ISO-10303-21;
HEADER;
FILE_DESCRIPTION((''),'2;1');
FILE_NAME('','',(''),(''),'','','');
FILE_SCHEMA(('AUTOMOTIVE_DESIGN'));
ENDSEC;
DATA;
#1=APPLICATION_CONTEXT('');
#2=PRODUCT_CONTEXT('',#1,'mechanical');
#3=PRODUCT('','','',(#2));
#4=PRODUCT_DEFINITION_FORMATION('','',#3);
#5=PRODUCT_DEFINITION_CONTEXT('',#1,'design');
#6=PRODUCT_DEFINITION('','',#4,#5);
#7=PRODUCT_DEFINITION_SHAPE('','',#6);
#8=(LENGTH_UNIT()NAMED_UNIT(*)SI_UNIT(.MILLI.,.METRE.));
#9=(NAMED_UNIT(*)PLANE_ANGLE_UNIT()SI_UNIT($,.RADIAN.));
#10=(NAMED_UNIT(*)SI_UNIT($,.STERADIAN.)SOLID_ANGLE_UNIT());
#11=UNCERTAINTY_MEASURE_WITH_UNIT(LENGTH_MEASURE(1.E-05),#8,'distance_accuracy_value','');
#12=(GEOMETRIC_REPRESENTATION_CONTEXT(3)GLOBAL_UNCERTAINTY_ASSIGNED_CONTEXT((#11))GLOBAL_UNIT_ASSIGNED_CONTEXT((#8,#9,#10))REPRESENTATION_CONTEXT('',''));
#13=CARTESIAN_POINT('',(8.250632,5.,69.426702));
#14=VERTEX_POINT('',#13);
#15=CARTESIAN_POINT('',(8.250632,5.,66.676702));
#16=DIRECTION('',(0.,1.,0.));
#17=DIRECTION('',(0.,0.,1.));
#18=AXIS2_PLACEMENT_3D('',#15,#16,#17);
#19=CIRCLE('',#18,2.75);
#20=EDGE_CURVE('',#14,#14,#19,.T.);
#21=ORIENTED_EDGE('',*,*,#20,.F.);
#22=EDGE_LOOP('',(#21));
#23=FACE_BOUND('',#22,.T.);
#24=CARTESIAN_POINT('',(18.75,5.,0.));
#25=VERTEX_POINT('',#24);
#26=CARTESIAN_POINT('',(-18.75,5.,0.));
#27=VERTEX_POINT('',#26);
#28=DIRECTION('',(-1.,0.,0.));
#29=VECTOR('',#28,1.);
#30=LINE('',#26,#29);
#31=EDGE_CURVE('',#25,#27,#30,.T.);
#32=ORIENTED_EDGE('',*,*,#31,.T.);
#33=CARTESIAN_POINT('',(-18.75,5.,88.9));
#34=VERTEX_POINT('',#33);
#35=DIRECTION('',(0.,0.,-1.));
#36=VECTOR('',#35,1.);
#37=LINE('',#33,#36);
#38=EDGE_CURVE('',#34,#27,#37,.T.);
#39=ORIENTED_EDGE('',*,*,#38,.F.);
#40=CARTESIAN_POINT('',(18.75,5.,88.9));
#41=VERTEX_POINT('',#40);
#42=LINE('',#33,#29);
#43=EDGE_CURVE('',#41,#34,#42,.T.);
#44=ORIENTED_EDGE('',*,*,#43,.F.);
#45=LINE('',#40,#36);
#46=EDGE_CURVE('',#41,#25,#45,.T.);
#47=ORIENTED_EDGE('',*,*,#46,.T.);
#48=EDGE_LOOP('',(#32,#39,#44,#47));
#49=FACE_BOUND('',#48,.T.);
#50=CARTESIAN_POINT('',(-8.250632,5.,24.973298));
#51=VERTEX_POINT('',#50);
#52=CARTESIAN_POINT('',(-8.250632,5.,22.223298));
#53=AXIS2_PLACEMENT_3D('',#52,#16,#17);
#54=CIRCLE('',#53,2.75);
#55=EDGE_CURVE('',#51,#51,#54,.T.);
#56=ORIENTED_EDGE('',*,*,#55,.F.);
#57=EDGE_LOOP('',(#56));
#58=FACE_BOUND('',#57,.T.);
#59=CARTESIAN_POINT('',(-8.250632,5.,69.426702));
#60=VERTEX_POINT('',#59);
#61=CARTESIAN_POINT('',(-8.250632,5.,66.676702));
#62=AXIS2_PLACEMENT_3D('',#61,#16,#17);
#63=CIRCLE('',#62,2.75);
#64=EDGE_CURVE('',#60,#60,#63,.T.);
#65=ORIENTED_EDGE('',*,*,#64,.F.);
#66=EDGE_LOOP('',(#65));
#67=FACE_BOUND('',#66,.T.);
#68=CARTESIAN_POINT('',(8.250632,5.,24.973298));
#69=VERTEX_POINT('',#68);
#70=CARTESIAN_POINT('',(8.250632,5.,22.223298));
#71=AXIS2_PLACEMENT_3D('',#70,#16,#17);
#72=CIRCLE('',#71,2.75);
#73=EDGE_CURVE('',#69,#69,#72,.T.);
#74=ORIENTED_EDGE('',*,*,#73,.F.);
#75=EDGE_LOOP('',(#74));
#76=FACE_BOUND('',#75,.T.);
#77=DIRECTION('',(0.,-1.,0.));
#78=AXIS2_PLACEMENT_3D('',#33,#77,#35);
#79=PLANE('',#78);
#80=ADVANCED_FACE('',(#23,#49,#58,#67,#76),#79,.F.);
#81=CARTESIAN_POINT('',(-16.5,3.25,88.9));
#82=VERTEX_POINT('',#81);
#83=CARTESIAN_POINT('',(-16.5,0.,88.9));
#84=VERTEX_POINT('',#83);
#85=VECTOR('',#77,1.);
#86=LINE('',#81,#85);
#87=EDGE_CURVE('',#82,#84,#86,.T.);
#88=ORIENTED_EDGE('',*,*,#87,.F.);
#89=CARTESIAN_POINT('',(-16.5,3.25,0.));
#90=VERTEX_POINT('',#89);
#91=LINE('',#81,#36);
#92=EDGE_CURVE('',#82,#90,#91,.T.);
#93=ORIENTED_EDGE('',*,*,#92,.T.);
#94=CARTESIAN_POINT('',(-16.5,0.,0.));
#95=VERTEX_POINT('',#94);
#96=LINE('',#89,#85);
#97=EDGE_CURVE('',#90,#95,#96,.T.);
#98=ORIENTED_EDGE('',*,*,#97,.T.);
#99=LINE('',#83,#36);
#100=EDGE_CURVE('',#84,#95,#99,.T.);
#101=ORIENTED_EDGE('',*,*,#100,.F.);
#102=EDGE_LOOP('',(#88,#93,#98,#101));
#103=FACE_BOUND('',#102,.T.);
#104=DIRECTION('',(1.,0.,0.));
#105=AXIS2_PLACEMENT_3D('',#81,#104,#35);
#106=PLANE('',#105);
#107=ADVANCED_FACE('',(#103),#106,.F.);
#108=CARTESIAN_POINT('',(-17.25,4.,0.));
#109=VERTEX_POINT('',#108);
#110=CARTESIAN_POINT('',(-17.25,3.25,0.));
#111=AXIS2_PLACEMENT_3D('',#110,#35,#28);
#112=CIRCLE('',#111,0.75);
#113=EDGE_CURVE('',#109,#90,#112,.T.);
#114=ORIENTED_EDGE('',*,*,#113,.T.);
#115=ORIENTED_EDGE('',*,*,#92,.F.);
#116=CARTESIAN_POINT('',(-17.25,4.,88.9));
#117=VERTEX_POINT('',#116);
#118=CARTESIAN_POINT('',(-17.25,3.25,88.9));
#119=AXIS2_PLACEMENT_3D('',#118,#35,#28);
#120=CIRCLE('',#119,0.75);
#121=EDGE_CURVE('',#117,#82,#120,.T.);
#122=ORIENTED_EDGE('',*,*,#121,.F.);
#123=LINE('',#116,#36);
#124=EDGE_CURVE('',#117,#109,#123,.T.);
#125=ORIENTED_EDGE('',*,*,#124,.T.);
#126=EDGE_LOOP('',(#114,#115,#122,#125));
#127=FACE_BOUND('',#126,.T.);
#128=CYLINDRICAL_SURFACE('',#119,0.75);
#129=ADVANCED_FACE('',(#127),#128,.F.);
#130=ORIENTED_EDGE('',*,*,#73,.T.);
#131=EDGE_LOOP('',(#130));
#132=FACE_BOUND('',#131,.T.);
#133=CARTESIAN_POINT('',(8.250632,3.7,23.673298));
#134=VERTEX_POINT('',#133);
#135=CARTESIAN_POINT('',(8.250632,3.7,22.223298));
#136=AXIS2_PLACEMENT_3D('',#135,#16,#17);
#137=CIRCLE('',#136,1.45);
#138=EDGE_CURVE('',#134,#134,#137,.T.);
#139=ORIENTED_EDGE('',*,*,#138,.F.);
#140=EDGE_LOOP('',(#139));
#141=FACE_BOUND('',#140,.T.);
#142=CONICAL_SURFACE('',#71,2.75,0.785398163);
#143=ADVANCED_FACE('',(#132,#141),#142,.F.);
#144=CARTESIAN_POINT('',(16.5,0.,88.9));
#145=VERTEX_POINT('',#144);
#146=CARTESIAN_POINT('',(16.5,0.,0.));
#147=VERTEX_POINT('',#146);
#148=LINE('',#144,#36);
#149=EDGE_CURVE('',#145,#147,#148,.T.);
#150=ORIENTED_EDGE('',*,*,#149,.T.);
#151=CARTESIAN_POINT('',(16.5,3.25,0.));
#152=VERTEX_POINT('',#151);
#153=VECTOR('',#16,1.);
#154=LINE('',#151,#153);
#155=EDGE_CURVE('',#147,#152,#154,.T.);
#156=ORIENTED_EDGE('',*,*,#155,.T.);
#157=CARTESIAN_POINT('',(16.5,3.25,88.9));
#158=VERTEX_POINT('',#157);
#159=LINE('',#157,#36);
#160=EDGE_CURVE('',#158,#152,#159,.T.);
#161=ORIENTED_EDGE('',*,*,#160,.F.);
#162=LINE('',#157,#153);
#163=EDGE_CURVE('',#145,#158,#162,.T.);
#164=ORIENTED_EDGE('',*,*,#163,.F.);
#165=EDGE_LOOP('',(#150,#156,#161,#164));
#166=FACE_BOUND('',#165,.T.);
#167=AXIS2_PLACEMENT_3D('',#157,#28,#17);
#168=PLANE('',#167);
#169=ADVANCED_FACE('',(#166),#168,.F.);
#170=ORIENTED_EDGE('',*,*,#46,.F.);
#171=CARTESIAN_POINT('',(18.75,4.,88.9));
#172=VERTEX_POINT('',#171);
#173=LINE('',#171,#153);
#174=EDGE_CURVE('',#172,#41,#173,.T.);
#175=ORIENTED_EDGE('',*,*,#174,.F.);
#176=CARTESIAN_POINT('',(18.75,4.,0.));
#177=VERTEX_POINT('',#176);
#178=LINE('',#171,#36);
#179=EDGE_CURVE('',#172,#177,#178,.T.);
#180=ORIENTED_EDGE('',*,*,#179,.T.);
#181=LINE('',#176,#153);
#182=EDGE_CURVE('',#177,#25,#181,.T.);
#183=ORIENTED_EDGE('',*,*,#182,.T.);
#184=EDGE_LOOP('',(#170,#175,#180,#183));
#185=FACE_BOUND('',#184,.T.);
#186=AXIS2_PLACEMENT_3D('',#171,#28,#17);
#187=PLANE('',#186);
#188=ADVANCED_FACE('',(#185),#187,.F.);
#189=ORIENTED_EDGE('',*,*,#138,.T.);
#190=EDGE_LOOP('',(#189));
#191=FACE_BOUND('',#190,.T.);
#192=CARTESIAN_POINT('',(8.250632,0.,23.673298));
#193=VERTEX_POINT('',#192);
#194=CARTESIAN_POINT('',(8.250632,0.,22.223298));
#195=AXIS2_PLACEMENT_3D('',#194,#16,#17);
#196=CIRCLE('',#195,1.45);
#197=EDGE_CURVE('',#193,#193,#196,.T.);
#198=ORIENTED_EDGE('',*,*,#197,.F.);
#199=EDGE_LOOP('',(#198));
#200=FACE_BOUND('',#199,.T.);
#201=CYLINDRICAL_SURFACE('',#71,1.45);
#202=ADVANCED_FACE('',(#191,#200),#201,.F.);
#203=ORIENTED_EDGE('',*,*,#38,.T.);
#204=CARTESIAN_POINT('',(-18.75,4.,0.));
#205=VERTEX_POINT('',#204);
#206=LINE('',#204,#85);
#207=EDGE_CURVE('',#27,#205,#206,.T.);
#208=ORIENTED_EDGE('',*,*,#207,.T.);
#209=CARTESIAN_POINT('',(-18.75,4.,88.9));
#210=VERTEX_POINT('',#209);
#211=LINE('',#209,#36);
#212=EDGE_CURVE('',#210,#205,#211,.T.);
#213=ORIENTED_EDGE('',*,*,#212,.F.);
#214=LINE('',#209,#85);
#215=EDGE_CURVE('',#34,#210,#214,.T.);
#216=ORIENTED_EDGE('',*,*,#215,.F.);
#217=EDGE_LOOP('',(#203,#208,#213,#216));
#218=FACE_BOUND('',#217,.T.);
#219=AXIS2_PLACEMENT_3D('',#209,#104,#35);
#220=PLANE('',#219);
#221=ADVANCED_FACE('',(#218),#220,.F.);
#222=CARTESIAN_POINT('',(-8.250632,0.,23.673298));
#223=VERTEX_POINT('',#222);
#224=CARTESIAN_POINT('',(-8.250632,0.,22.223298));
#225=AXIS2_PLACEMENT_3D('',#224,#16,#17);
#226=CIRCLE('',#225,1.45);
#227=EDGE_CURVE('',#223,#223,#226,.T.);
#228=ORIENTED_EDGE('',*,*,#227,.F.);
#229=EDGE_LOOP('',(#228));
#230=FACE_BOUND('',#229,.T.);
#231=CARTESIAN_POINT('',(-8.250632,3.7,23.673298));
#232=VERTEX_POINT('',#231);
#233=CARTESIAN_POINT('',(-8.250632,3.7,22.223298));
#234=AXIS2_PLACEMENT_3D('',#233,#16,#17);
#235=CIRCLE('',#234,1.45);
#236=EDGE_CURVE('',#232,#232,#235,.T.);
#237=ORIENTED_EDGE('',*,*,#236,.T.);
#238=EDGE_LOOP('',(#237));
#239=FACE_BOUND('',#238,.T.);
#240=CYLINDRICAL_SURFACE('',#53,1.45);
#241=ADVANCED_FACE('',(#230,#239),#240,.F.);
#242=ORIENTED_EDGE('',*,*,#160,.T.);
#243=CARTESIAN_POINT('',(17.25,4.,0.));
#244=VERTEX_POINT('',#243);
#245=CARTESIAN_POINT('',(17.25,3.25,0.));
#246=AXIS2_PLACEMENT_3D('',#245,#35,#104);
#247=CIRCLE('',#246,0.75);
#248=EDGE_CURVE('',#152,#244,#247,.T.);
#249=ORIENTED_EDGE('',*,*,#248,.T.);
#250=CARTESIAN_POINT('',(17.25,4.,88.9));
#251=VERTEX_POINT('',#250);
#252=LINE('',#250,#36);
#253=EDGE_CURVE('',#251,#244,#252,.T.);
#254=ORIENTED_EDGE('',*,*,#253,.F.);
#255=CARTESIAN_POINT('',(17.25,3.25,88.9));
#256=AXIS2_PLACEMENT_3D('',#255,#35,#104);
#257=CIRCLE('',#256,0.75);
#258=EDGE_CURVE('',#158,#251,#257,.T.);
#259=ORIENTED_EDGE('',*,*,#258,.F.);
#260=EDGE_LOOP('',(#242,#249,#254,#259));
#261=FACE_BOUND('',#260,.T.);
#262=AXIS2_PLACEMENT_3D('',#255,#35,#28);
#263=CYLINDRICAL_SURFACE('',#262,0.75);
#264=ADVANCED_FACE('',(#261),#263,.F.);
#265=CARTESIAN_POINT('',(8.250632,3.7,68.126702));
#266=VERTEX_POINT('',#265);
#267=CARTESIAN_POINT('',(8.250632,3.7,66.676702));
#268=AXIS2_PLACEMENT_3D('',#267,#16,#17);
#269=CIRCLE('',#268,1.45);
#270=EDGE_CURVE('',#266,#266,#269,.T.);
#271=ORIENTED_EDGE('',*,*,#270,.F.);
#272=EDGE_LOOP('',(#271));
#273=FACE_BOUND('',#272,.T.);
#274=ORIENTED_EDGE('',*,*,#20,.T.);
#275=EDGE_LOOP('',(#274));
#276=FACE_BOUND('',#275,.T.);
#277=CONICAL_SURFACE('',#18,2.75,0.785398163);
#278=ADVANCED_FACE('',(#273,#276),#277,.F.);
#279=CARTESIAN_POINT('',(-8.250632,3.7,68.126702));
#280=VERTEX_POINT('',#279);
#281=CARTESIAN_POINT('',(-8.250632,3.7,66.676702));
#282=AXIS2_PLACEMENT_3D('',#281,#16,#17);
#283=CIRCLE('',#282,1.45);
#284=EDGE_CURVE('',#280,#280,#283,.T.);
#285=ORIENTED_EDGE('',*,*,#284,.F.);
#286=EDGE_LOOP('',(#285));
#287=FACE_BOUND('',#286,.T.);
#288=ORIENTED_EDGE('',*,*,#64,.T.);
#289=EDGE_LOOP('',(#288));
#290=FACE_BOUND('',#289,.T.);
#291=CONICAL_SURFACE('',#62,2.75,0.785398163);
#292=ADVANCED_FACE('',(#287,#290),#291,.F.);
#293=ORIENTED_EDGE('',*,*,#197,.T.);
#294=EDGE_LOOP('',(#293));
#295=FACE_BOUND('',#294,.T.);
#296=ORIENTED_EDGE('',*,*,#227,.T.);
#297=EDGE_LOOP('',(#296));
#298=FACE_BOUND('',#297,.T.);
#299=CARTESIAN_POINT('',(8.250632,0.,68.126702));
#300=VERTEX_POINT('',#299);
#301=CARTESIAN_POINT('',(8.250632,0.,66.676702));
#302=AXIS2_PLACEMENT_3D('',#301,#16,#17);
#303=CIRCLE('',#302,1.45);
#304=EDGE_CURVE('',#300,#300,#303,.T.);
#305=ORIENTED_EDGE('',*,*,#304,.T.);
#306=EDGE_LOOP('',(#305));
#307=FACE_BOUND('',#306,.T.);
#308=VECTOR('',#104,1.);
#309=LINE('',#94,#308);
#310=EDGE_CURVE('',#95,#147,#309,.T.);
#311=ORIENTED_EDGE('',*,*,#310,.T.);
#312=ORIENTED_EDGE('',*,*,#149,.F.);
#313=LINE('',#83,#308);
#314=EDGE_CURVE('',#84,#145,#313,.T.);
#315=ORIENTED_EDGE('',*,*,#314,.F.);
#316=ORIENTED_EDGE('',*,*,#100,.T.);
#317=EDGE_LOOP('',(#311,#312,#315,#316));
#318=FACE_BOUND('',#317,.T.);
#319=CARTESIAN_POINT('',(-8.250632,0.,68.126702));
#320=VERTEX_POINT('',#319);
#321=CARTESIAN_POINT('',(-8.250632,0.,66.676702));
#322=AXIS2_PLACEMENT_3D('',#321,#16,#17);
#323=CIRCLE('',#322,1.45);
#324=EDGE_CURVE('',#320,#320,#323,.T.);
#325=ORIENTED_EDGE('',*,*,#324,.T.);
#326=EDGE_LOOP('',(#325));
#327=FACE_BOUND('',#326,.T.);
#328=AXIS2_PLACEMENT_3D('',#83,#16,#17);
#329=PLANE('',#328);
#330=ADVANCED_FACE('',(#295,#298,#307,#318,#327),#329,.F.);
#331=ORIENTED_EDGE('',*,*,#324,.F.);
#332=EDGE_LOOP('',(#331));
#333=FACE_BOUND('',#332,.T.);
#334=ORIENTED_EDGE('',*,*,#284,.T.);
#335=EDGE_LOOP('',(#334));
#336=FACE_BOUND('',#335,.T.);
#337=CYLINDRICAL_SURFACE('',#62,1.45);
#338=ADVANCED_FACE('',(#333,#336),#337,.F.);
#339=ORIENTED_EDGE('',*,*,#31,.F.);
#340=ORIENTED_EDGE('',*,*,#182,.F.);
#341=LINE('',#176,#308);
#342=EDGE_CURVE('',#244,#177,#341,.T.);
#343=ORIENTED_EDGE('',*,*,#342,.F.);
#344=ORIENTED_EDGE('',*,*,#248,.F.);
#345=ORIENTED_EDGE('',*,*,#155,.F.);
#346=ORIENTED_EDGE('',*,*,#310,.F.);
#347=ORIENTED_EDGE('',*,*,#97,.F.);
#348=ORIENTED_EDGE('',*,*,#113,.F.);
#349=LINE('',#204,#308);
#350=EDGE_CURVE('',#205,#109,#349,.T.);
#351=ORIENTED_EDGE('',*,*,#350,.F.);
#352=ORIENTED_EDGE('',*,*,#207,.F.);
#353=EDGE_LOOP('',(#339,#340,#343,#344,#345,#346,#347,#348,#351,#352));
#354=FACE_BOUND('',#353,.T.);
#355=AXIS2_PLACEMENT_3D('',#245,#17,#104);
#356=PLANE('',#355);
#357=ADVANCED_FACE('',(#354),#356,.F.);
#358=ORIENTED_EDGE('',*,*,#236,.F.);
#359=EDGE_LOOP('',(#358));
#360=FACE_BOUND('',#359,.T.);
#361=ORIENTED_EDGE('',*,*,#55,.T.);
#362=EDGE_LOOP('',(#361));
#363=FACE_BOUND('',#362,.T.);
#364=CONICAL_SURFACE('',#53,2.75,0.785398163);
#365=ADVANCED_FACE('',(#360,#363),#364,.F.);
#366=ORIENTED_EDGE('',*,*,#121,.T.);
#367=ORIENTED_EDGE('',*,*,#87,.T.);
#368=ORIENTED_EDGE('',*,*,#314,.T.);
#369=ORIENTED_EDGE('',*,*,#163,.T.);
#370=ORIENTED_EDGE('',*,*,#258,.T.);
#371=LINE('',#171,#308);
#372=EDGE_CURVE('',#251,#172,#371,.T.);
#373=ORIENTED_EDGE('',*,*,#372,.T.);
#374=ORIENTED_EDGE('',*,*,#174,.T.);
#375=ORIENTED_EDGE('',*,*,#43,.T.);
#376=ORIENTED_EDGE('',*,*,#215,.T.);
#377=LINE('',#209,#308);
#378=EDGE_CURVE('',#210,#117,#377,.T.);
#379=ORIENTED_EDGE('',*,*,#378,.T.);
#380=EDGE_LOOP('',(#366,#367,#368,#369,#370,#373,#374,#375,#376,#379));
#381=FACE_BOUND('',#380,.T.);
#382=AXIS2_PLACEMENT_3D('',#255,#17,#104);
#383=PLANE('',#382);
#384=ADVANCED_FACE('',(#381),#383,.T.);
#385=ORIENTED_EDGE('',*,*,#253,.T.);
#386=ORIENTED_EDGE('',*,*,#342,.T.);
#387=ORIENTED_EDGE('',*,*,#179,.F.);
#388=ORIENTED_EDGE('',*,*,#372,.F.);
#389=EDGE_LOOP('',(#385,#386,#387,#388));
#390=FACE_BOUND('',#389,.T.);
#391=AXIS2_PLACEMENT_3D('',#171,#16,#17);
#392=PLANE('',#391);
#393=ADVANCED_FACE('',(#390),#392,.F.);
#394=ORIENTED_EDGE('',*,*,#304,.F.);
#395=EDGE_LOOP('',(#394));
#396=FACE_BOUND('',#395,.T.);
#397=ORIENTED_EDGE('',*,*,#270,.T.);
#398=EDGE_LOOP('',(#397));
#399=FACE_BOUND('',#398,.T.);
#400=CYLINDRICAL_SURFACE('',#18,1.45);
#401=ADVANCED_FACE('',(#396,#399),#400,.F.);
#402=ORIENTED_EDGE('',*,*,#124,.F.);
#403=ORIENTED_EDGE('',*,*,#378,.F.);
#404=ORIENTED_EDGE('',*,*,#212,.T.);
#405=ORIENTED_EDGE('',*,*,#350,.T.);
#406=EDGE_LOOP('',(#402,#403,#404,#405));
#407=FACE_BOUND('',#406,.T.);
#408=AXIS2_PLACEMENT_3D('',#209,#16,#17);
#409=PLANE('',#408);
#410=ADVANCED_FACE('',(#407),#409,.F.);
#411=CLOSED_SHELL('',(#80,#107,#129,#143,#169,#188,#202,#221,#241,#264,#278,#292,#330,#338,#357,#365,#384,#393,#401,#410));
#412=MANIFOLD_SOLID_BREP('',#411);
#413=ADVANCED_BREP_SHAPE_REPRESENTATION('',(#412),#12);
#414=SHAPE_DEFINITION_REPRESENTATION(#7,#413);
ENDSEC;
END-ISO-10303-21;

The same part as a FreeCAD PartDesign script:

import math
import FreeCAD as App
import Part
import Sketcher
from FreeCAD import Vector

doc = App.newDocument("Part")
body = doc.addObject("PartDesign::Body", "Body")

sketch1 = body.newObject("Sketcher::SketchObject", "Sketch")
sketch1.AttachmentSupport = (doc.getObject("XY_Plane"), [""])
sketch1.MapMode = "FlatFace"
sketch1.addGeometry(Part.LineSegment(Vector(-16.5, 3.25, 0), Vector(-16.5, 0, 0)), False)
sketch1.addGeometry(Part.LineSegment(Vector(-16.5, 0, 0), Vector(16.5, 0, 0)), False)
sketch1.addGeometry(Part.LineSegment(Vector(16.5, 0, 0), Vector(16.5, 3.25, 0)), False)
sketch1.addGeometry(Part.ArcOfCircle(Part.Circle(Vector(17.25, 3.25, 0), Vector(0, 0, 1), 0.75), math.radians(90), math.radians(180)), False)
sketch1.addGeometry(Part.LineSegment(Vector(17.25, 4, 0), Vector(18.75, 4, 0)), False)
sketch1.addGeometry(Part.LineSegment(Vector(18.75, 4, 0), Vector(18.75, 5, 0)), False)
sketch1.addGeometry(Part.LineSegment(Vector(18.75, 5, 0), Vector(-18.75, 5, 0)), False)
sketch1.addGeometry(Part.LineSegment(Vector(-18.75, 5, 0), Vector(-18.75, 4, 0)), False)
sketch1.addGeometry(Part.LineSegment(Vector(-18.75, 4, 0), Vector(-17.25, 4, 0)), False)
sketch1.addGeometry(Part.ArcOfCircle(Part.Circle(Vector(-17.25, 3.25, 0), Vector(0, 0, 1), 0.75), math.radians(0), math.radians(90)), False)
sketch1.addConstraint(Sketcher.Constraint("Coincident", 0, 2, 1, 1))
sketch1.addConstraint(Sketcher.Constraint("Coincident", 1, 2, 2, 1))
sketch1.addConstraint(Sketcher.Constraint("Tangent", 2, 2, 3, 2))
sketch1.addConstraint(Sketcher.Constraint("Tangent", 3, 1, 4, 1))
sketch1.addConstraint(Sketcher.Constraint("Coincident", 4, 2, 5, 1))
sketch1.addConstraint(Sketcher.Constraint("Coincident", 5, 2, 6, 1))
sketch1.addConstraint(Sketcher.Constraint("Coincident", 6, 2, 7, 1))
sketch1.addConstraint(Sketcher.Constraint("Coincident", 7, 2, 8, 1))
sketch1.addConstraint(Sketcher.Constraint("Tangent", 8, 2, 9, 2))
sketch1.addConstraint(Sketcher.Constraint("Tangent", 9, 1, 0, 1))
sketch1.addConstraint(Sketcher.Constraint("Vertical", 0))
sketch1.addConstraint(Sketcher.Constraint("Horizontal", 1))
sketch1.addConstraint(Sketcher.Constraint("Vertical", 2))
sketch1.addConstraint(Sketcher.Constraint("Horizontal", 4))
sketch1.addConstraint(Sketcher.Constraint("Vertical", 5))
sketch1.addConstraint(Sketcher.Constraint("Horizontal", 6))
sketch1.addConstraint(Sketcher.Constraint("Vertical", 7))
sketch1.addConstraint(Sketcher.Constraint("Horizontal", 8))
sketch1.addConstraint(Sketcher.Constraint("Equal", 3, 9))
sketch1.addConstraint(Sketcher.Constraint("Symmetric", 0, 2, 1, 2, -1, 1))
sketch1.addConstraint(Sketcher.Constraint("Symmetric", 4, 2, 7, 2, -2))
sketch1.addConstraint(Sketcher.Constraint("DistanceX", 1, 1, 1, 2, 33.0))
sketch1.addConstraint(Sketcher.Constraint("DistanceY", 5, 1, 5, 2, 1.0))
sketch1.addConstraint(Sketcher.Constraint("Radius", 3, 0.75))
sketch1.addConstraint(Sketcher.Constraint("DistanceX", 4, 1, 4, 2, 1.5))
sketch1.addConstraint(Sketcher.Constraint("DistanceY", -1, 1, 3, 1, 4.0))
pad1 = body.newObject("PartDesign::Pad", "Pad")
pad1.Profile = sketch1
pad1.Length = 88.9

sketch2 = body.newObject("Sketcher::SketchObject", "Sketch001")
sketch2.AttachmentSupport = (doc.getObject("XZ_Plane"), [""])
sketch2.MapMode = "FlatFace"
sketch2.AttachmentOffset = App.Placement(Vector(0, 0, -5), App.Rotation())
sketch2.addGeometry(Part.Circle(Vector(8.250632, 22.223298, 0), Vector(0, 0, 1), 1.45), False)
sketch2.addGeometry(Part.Circle(Vector(-8.250632, 22.223298, 0), Vector(0, 0, 1), 1.45), False)
sketch2.addGeometry(Part.Circle(Vector(-8.250632, 66.676702, 0), Vector(0, 0, 1), 1.45), False)
sketch2.addGeometry(Part.Circle(Vector(8.250632, 66.676702, 0), Vector(0, 0, 1), 1.45), False)
sketch2.addConstraint(Sketcher.Constraint("Equal", 0, 1))
sketch2.addConstraint(Sketcher.Constraint("Equal", 1, 2))
sketch2.addConstraint(Sketcher.Constraint("Equal", 2, 3))
sketch2.addConstraint(Sketcher.Constraint("Symmetric", 0, 3, 1, 3, -2))
sketch2.addConstraint(Sketcher.Constraint("Symmetric", 2, 3, 3, 3, -2))
sketch2.addConstraint(Sketcher.Constraint("Vertical", 1, 3, 2, 3))
sketch2.addConstraint(Sketcher.Constraint("Diameter", 0, 2.9))
sketch2.addConstraint(Sketcher.Constraint("DistanceX", -1, 1, 0, 3, 8.250632))
sketch2.addConstraint(Sketcher.Constraint("DistanceY", -1, 1, 0, 3, 22.223298))
sketch2.addConstraint(Sketcher.Constraint("DistanceY", -1, 1, 2, 3, 66.676702))
doc.recompute()
hole = body.newObject("PartDesign::Hole", "Hole")
hole.Profile = sketch2
hole.ThreadType = "None"
hole.Diameter = 2.9
hole.DepthType = "ThroughAll"
hole.HoleCutType = "Countersink"
hole.HoleCutDiameter = 5.5
hole.HoleCutCountersinkAngle = 90
hole.Reversed = True

doc.recompute()
